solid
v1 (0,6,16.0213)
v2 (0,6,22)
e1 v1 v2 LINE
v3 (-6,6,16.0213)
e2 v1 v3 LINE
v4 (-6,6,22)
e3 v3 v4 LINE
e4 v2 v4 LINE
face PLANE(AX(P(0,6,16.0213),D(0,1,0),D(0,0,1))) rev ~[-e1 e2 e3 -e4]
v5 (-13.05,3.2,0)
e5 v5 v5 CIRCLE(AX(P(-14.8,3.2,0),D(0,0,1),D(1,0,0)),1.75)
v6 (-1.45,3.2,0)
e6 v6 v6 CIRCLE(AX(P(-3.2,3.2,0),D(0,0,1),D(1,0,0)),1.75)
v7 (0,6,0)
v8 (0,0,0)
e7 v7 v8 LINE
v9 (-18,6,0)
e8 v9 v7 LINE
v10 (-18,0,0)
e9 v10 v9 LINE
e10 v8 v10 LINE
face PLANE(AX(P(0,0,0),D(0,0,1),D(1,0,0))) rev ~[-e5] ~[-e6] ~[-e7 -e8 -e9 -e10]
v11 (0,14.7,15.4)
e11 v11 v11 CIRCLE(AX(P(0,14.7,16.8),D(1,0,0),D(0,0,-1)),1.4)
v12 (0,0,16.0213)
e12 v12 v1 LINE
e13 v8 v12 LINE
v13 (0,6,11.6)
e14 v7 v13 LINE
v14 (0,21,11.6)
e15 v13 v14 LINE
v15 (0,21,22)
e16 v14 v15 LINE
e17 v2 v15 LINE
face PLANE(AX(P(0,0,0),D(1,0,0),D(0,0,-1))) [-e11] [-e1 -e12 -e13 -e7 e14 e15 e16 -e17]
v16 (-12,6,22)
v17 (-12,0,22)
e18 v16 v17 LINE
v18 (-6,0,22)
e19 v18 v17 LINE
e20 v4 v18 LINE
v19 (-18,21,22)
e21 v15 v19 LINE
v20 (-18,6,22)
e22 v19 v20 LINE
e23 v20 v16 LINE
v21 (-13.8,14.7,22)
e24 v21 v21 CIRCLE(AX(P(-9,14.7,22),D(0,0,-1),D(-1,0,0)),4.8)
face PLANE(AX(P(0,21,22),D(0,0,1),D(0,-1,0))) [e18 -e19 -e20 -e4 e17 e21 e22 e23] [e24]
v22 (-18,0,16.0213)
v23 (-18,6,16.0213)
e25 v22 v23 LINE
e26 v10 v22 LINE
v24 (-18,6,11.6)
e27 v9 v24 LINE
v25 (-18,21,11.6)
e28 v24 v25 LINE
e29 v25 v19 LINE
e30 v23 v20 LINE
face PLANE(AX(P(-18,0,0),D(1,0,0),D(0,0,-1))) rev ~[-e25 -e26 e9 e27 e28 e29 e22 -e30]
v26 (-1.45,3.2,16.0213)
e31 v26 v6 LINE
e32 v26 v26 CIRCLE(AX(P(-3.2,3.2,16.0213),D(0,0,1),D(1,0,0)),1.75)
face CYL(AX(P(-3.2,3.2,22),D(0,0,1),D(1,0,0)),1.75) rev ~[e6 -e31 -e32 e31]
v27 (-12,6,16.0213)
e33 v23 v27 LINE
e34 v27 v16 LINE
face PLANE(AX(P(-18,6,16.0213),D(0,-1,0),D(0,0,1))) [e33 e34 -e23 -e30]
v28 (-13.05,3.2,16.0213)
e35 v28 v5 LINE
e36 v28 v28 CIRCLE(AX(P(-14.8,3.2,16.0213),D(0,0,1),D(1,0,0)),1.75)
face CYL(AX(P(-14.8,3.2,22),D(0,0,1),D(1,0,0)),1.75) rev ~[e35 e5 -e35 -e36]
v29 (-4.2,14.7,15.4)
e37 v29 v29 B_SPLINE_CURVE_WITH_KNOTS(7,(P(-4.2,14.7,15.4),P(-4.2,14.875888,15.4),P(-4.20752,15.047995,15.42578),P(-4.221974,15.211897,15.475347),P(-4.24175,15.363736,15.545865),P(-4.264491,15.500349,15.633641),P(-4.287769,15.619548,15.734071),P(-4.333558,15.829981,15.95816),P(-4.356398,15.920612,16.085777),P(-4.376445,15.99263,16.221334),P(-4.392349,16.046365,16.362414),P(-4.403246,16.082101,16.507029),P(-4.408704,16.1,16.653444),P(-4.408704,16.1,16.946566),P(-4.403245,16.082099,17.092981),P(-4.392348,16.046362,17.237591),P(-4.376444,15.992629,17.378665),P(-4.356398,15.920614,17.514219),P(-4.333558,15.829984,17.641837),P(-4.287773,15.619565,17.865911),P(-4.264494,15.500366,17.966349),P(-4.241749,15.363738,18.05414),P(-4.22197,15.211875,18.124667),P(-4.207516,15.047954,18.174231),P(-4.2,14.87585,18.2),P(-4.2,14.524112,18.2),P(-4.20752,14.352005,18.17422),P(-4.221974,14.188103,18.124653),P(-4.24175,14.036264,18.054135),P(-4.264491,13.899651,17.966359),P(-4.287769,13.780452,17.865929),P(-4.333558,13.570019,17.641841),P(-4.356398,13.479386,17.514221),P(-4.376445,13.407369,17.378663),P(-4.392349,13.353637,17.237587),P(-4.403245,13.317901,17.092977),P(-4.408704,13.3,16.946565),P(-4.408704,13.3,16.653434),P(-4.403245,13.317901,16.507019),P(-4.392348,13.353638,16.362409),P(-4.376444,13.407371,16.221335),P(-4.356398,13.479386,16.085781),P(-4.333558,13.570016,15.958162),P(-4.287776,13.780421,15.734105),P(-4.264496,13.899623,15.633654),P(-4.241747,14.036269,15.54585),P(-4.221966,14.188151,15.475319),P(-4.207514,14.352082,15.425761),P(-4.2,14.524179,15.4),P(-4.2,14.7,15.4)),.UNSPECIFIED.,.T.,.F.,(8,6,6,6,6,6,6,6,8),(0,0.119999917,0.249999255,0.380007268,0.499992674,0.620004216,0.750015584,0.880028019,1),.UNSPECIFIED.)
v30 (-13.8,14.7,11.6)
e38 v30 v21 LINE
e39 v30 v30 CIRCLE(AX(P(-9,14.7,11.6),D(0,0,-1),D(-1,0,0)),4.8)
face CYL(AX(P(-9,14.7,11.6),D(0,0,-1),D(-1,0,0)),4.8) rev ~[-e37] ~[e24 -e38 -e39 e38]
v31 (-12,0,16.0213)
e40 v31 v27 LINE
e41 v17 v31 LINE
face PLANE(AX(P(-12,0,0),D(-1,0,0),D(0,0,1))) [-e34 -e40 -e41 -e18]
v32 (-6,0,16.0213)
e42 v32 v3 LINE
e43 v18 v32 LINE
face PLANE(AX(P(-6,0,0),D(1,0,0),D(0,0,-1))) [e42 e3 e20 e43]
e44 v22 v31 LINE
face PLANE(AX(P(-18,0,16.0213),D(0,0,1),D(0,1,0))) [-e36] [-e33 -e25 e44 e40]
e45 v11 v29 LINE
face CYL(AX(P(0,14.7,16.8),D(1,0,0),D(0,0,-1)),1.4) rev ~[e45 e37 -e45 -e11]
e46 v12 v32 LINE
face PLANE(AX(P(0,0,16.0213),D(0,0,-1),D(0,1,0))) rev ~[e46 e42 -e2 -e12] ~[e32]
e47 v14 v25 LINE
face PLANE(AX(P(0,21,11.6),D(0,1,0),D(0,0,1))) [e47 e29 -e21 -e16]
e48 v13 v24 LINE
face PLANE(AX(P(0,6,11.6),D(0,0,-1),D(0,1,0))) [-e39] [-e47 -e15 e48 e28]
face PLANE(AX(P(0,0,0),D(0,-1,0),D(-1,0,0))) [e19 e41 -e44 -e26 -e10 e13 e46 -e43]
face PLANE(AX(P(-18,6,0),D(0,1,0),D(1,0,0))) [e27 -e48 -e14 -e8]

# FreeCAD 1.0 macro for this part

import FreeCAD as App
import Part
import Sketcher

V = App.Vector


def add_polygon(sketch, points):
    """Adds a closed chain of lines whose ends are joined by coincident constraints."""
    first, n = sketch.GeometryCount, len(points)
    for a, b in zip(points, points[1:] + points[:1]):
        sketch.addGeometry(Part.LineSegment(App.Vector(*a, 0), App.Vector(*b, 0)), False)
    for i in range(n):
        sketch.addConstraint(Sketcher.Constraint("Coincident", first + i, 2, first + (i + 1) % n, 1))

doc = App.newDocument("Part")
body = doc.addObject("PartDesign::Body", "Body")

# Sketch on XY plane
sketch1 = body.newObject("Sketcher::SketchObject", "Sketch")
sketch1.AttachmentSupport = (doc.getObject("XY_Plane"), [""])
sketch1.MapMode = "FlatFace"
add_polygon(sketch1, [(-18, 0), (0, 0), (0, 6), (-18, 6)])  # lines 0-3
sketch1.addConstraint(Sketcher.Constraint("Horizontal", 0))
sketch1.addConstraint(Sketcher.Constraint("Vertical", 1))
sketch1.addConstraint(Sketcher.Constraint("Horizontal", 2))
sketch1.addConstraint(Sketcher.Constraint("Vertical", 3))
sketch1.addConstraint(Sketcher.Constraint("Coincident", 0, 2, -1, 1))
sketch1.addConstraint(Sketcher.Constraint("DistanceX", 0, 1, 0, 2, 18.0))
sketch1.addConstraint(Sketcher.Constraint("DistanceY", 1, 1, 1, 2, 6.0))
pad1 = body.newObject("PartDesign::Pad", "Pad")
pad1.Profile = sketch1
pad1.Length = 22

# Sketch on XY plane
sketch2 = body.newObject("Sketcher::SketchObject", "Sketch001")
sketch2.AttachmentSupport = (doc.getObject("XY_Plane"), [""])
sketch2.MapMode = "FlatFace"
sketch2.AttachmentOffset = App.Placement(V(0, 0, 22), App.Rotation())
sketch2.addGeometry(Part.Circle(V(-14.8, 3.2, 0), V(0, 0, 1), 1.75), False)
sketch2.addGeometry(Part.Circle(V(-3.2, 3.2, 0), V(0, 0, 1), 1.75), False)
sketch2.addConstraint(Sketcher.Constraint("Equal", 0, 1))
sketch2.addConstraint(Sketcher.Constraint("Horizontal", 0, 3, 1, 3))
sketch2.addConstraint(Sketcher.Constraint("Diameter", 0, 3.5))
sketch2.addConstraint(Sketcher.Constraint("DistanceY", -1, 1, 0, 3, 3.2))
sketch2.addConstraint(Sketcher.Constraint("DistanceX", 1, 3, -1, 1, 3.2))
sketch2.addConstraint(Sketcher.Constraint("DistanceX", 0, 3, -1, 1, 14.8))
pocket1 = body.newObject("PartDesign::Pocket", "Pocket")
pocket1.Profile = sketch2
pocket1.Type = "ThroughAll"

# Sketch on YZ plane
sketch3 = body.newObject("Sketcher::SketchObject", "Sketch002")
sketch3.AttachmentSupport = (doc.getObject("YZ_Plane"), [""])
sketch3.MapMode = "FlatFace"
add_polygon(sketch3, [(6, 22), (6, 11.6), (21, 11.6), (21, 22)])  # lines 0-3
sketch3.addConstraint(Sketcher.Constraint("Vertical", 0))
sketch3.addConstraint(Sketcher.Constraint("Horizontal", 1))
sketch3.addConstraint(Sketcher.Constraint("Vertical", 2))
sketch3.addConstraint(Sketcher.Constraint("Horizontal", 3))
sketch3.addConstraint(Sketcher.Constraint("DistanceX", 1, 1, 1, 2, 15.0))
sketch3.addConstraint(Sketcher.Constraint("DistanceY", 0, 2, 0, 1, 10.4))
sketch3.addConstraint(Sketcher.Constraint("DistanceX", -1, 1, 0, 2, 6.0))
sketch3.addConstraint(Sketcher.Constraint("DistanceY", -1, 1, 2, 2, 22.0))
pad2 = body.newObject("PartDesign::Pad", "Pad001")
pad2.Profile = sketch3
pad2.Length = 18
pad2.Reversed = True

# Sketch on XY plane
sketch4 = body.newObject("Sketcher::SketchObject", "Sketch003")
sketch4.AttachmentSupport = (doc.getObject("XY_Plane"), [""])
sketch4.MapMode = "FlatFace"
sketch4.AttachmentOffset = App.Placement(V(0, 0, 11.6), App.Rotation())
sketch4.addGeometry(Part.Circle(V(-9, 14.7, 0), V(0, 0, 1), 4.8), False)
sketch4.addConstraint(Sketcher.Constraint("Diameter", 0, 9.6))
sketch4.addConstraint(Sketcher.Constraint("DistanceX", 0, 3, -1, 1, 9.0))
sketch4.addConstraint(Sketcher.Constraint("DistanceY", -1, 1, 0, 3, 14.7))
pocket2 = body.newObject("PartDesign::Pocket", "Pocket001")
pocket2.Profile = sketch4
pocket2.Type = "ThroughAll"
pocket2.Reversed = True

# Sketch on YZ plane
sketch5 = body.newObject("Sketcher::SketchObject", "Sketch004")
sketch5.AttachmentSupport = (doc.getObject("YZ_Plane"), [""])
sketch5.MapMode = "FlatFace"
sketch5.AttachmentOffset = App.Placement(V(0, 0, -18), App.Rotation())
add_polygon(sketch5, [(0, 16.0213), (0, 22.0213), (6, 22.0213), (6, 16.0213)])  # lines 0-3
sketch5.addConstraint(Sketcher.Constraint("Vertical", 0))
sketch5.addConstraint(Sketcher.Constraint("Horizontal", 1))
sketch5.addConstraint(Sketcher.Constraint("Vertical", 2))
sketch5.addConstraint(Sketcher.Constraint("Horizontal", 3))
sketch5.addConstraint(Sketcher.Constraint("PointOnObject", 0, 2, -2))
sketch5.addConstraint(Sketcher.Constraint("Equal", 3, 0))
sketch5.addConstraint(Sketcher.Constraint("DistanceX", 1, 1, 1, 2, 6.0))
sketch5.addConstraint(Sketcher.Constraint("DistanceY", -1, 1, 0, 2, 22.0213))
pocket3 = body.newObject("PartDesign::Pocket", "Pocket002")
pocket3.Profile = sketch5
pocket3.Length = 6
pocket3.Reversed = True

# Sketch on YZ plane
sketch6 = body.newObject("Sketcher::SketchObject", "Sketch005")
sketch6.AttachmentSupport = (doc.getObject("YZ_Plane"), [""])
sketch6.MapMode = "FlatFace"
add_polygon(sketch6, [(6, 16.0213), (6, 22), (0, 22), (0, 16.0213)])  # lines 0-3
sketch6.addConstraint(Sketcher.Constraint("Vertical", 0))
sketch6.addConstraint(Sketcher.Constraint("Horizontal", 1))
sketch6.addConstraint(Sketcher.Constraint("Vertical", 2))
sketch6.addConstraint(Sketcher.Constraint("Horizontal", 3))
sketch6.addConstraint(Sketcher.Constraint("PointOnObject", 1, 2, -2))
sketch6.addConstraint(Sketcher.Constraint("DistanceX", 1, 2, 1, 1, 6.0))
sketch6.addConstraint(Sketcher.Constraint("DistanceY", -1, 1, 0, 2, 22.0))
sketch6.addConstraint(Sketcher.Constraint("DistanceY", 0, 1, 0, 2, 5.9787))
pocket4 = body.newObject("PartDesign::Pocket", "Pocket003")
pocket4.Profile = sketch6
pocket4.Length = 6

# Sketch on YZ plane
sketch7 = body.newObject("Sketcher::SketchObject", "Sketch006")
sketch7.AttachmentSupport = (doc.getObject("YZ_Plane"), [""])
sketch7.MapMode = "FlatFace"
sketch7.addGeometry(Part.Circle(V(14.7, 16.8, 0), V(0, 0, 1), 1.4), False)
sketch7.addConstraint(Sketcher.Constraint("Diameter", 0, 2.8))
sketch7.addConstraint(Sketcher.Constraint("DistanceX", -1, 1, 0, 3, 14.7))
sketch7.addConstraint(Sketcher.Constraint("DistanceY", -1, 1, 0, 3, 16.8))
pocket5 = body.newObject("PartDesign::Pocket", "Pocket004")
pocket5.Profile = sketch7
pocket5.Length = 6

doc.recompute()
